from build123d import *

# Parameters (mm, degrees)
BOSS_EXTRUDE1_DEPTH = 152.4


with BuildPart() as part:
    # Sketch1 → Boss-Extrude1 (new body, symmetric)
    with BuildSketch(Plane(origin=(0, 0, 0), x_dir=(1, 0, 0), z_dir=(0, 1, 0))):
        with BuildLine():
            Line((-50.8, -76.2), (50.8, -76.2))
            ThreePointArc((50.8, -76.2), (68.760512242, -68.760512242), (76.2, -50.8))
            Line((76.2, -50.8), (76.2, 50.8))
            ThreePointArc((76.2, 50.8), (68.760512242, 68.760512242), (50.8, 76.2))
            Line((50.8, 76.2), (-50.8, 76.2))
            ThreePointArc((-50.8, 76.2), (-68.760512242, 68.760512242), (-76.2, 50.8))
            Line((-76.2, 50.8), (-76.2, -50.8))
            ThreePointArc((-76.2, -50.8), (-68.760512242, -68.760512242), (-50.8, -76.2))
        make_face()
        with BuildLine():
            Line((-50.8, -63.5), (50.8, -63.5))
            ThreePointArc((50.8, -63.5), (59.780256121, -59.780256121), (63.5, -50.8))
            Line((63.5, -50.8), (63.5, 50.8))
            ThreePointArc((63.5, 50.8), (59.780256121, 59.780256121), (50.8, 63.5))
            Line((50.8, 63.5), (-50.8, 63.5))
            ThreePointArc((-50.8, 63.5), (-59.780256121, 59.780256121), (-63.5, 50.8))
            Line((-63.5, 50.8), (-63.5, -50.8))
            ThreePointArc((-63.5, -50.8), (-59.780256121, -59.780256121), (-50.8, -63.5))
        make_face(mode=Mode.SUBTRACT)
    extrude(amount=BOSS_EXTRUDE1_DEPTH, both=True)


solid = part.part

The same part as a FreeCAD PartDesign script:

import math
import FreeCAD as App
import Part
import Sketcher

V = App.Vector
Q = App.Units.Quantity

doc = App.newDocument("Part")
body = doc.addObject("PartDesign::Body", "Body")

# Sketch on XZ plane
sketch1 = body.newObject("Sketcher::SketchObject", "Sketch")
sketch1.AttachmentSupport = (doc.getObject("XZ_Plane"), [""])
sketch1.MapMode = "FlatFace"
sketch1.addGeometry([
    Part.LineSegment(V(-50.8, 76.2, 0), V(50.8, 76.2, 0)),  # 0
    Part.ArcOfCircle(Part.Circle(V(50.8, 50.8, 0), V(0, 0, 1), 25.4), math.radians(0), math.radians(90)),  # 1
    Part.LineSegment(V(76.2, 50.8, 0), V(76.2, -50.8, 0)),  # 2
    Part.ArcOfCircle(Part.Circle(V(50.8, -50.8, 0), V(0, 0, 1), 25.4), math.radians(-90), math.radians(0)),  # 3
    Part.LineSegment(V(50.8, -76.2, 0), V(-50.8, -76.2, 0)),  # 4
    Part.ArcOfCircle(Part.Circle(V(-50.8, -50.8, 0), V(0, 0, 1), 25.4), math.radians(180), math.radians(270)),  # 5
    Part.LineSegment(V(-76.2, -50.8, 0), V(-76.2, 50.8, 0)),  # 6
    Part.ArcOfCircle(Part.Circle(V(-50.8, 50.8, 0), V(0, 0, 1), 25.4), math.radians(90), math.radians(180)),  # 7
    Part.LineSegment(V(50.8, 63.5, 0), V(-50.8, 63.5, 0)),  # 8
    Part.ArcOfCircle(Part.Circle(V(-50.8, 50.8, 0), V(0, 0, 1), 12.7), math.radians(90), math.radians(180)),  # 9
    Part.LineSegment(V(-63.5, 50.8, 0), V(-63.5, -50.8, 0)),  # 10
    Part.ArcOfCircle(Part.Circle(V(-50.8, -50.8, 0), V(0, 0, 1), 12.7), math.radians(180), math.radians(270)),  # 11
    Part.LineSegment(V(-50.8, -63.5, 0), V(50.8, -63.5, 0)),  # 12
    Part.ArcOfCircle(Part.Circle(V(50.8, -50.8, 0), V(0, 0, 1), 12.7), math.radians(-90), math.radians(0)),  # 13
    Part.LineSegment(V(63.5, -50.8, 0), V(63.5, 50.8, 0)),  # 14
    Part.ArcOfCircle(Part.Circle(V(50.8, 50.8, 0), V(0, 0, 1), 12.7), math.radians(0), math.radians(90)),  # 15
], False)
sketch1.addConstraint([
    Sketcher.Constraint("Tangent", 0, 2, 1, 2),
    Sketcher.Constraint("Tangent", 1, 1, 2, 1),
    Sketcher.Constraint("Tangent", 2, 2, 3, 2),
    Sketcher.Constraint("Tangent", 3, 1, 4, 1),
    Sketcher.Constraint("Tangent", 4, 2, 5, 2),
    Sketcher.Constraint("Tangent", 5, 1, 6, 1),
    Sketcher.Constraint("Tangent", 6, 2, 7, 2),
    Sketcher.Constraint("Tangent", 7, 1, 0, 1),
    Sketcher.Constraint("Tangent", 8, 2, 9, 1),
    Sketcher.Constraint("Tangent", 9, 2, 10, 1),
    Sketcher.Constraint("Tangent", 10, 2, 11, 1),
    Sketcher.Constraint("Tangent", 11, 2, 12, 1),
    Sketcher.Constraint("Tangent", 12, 2, 13, 1),
    Sketcher.Constraint("Tangent", 13, 2, 14, 1),
    Sketcher.Constraint("Tangent", 14, 2, 15, 1),
    Sketcher.Constraint("Tangent", 15, 2, 8, 1),
    Sketcher.Constraint("Horizontal", 0),
    Sketcher.Constraint("Vertical", 2),
    Sketcher.Constraint("Horizontal", 4),
    Sketcher.Constraint("Vertical", 6),
    Sketcher.Constraint("Horizontal", 8),
    Sketcher.Constraint("Vertical", 10),
    Sketcher.Constraint("Horizontal", 12),
    Sketcher.Constraint("Vertical", 14),
    Sketcher.Constraint("Coincident", 9, 3, 7, 3),
    Sketcher.Constraint("Coincident", 11, 3, 5, 3),
    Sketcher.Constraint("Coincident", 13, 3, 3, 3),
    Sketcher.Constraint("Equal", 1, 3),
    Sketcher.Constraint("Equal", 3, 5),
    Sketcher.Constraint("Equal", 5, 7),
    Sketcher.Constraint("Equal", 13, 15),
    Sketcher.Constraint("Symmetric", 1, 3, 5, 3, -1, 1),
    Sketcher.Constraint("Equal", 12, 2),
    Sketcher.Constraint("Radius", 1, Q("1 in")),
    Sketcher.Constraint("Radius", 9, Q("0.5 in")),
    Sketcher.Constraint("DistanceX", 0, 1, 0, 2, Q("4 in")),
])
pad1 = body.newObject("PartDesign::Pad", "Pad")
pad1.Profile = sketch1
pad1.Length = Q("12 in")
pad1.Midplane = True

doc.recompute()
